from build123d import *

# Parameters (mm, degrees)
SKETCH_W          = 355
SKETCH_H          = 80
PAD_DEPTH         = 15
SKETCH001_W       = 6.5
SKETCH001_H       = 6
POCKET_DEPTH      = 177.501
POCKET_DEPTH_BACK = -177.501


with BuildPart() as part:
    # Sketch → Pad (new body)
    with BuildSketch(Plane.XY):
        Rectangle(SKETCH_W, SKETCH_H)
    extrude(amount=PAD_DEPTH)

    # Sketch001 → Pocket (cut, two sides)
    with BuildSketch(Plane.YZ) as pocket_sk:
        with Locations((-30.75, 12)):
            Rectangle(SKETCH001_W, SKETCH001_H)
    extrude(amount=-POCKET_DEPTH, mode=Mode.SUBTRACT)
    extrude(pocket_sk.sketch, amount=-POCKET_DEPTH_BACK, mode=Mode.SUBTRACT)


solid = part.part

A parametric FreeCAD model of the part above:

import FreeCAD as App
import Part
import Sketcher
from FreeCAD import Vector
Q = App.Units.Quantity

doc = App.newDocument("Part")
params = doc.addObject("Spreadsheet::Sheet", "Params")
for row, (alias, value) in enumerate([
    ("sketch1_width", "355 mm"),
    ("sketch1_height", "80 mm"),
    ("pad1_length", "15 mm"),
    ("sketch2_height", "6 mm"),
    ("sketch2_width", "6.5 mm"),
], start=1):
    params.set(f"A{row}", alias)
    params.set(f"B{row}", "=" + value)
    params.setAlias(f"B{row}", alias)

body = doc.addObject("PartDesign::Body", "Body")

sketch1 = doc.addObject("Sketcher::SketchObject", "Sketch")
body.addObject(sketch1)
sketch1.AttachmentSupport = (doc.XY_Plane, [""])
sketch1.MapMode = "FlatFace"
sketch1.addGeometry(Part.LineSegment(Vector(-177.5, 40, 0), Vector(-177.5, -40, 0)), False)
sketch1.addGeometry(Part.LineSegment(Vector(-177.5, -40, 0), Vector(177.5, -40, 0)), False)
sketch1.addGeometry(Part.LineSegment(Vector(177.5, -40, 0), Vector(177.5, 40, 0)), False)
sketch1.addGeometry(Part.LineSegment(Vector(177.5, 40, 0), Vector(-177.5, 40, 0)), False)
sketch1.addConstraint(Sketcher.Constraint("Coincident", 0, 2, 1, 1))
sketch1.addConstraint(Sketcher.Constraint("Coincident", 1, 2, 2, 1))
sketch1.addConstraint(Sketcher.Constraint("Coincident", 2, 2, 3, 1))
sketch1.addConstraint(Sketcher.Constraint("Coincident", 3, 2, 0, 1))
sketch1.addConstraint(Sketcher.Constraint("Vertical", 0))
sketch1.addConstraint(Sketcher.Constraint("Horizontal", 1))
sketch1.addConstraint(Sketcher.Constraint("Vertical", 2))
sketch1.addConstraint(Sketcher.Constraint("Horizontal", 3))
sketch1.addConstraint(Sketcher.Constraint("Symmetric", 0, 2, 2, 2, -1, 1))
sketch1.addConstraint(Sketcher.Constraint("DistanceX", 1, 1, 1, 2, Q("355 mm")))
sketch1.addConstraint(Sketcher.Constraint("DistanceY", 0, 2, 0, 1, Q("80 mm")))
sketch1.setExpression("Constraints[9]", "Params.sketch1_width")
sketch1.setExpression("Constraints[10]", "Params.sketch1_height")
pad1 = doc.addObject("PartDesign::Pad", "Pad")
body.addObject(pad1)
pad1.Profile = sketch1
pad1.setExpression("Length", "Params.pad1_length")

sketch2 = doc.addObject("Sketcher::SketchObject", "Sketch001")
body.addObject(sketch2)
sketch2.AttachmentSupport = (doc.YZ_Plane, [""])
sketch2.MapMode = "FlatFace"
sketch2.addGeometry(Part.LineSegment(Vector(-34, 15, 0), Vector(-34, 9, 0)), False)
sketch2.addGeometry(Part.LineSegment(Vector(-34, 9, 0), Vector(-27.5, 9, 0)), False)
sketch2.addGeometry(Part.LineSegment(Vector(-27.5, 9, 0), Vector(-27.5, 15, 0)), False)
sketch2.addGeometry(Part.LineSegment(Vector(-27.5, 15, 0), Vector(-34, 15, 0)), False)
sketch2.addConstraint(Sketcher.Constraint("Coincident", 0, 2, 1, 1))
sketch2.addConstraint(Sketcher.Constraint("Coincident", 1, 2, 2, 1))
sketch2.addConstraint(Sketcher.Constraint("Coincident", 2, 2, 3, 1))
sketch2.addConstraint(Sketcher.Constraint("Coincident", 3, 2, 0, 1))
sketch2.addConstraint(Sketcher.Constraint("Vertical", 0))
sketch2.addConstraint(Sketcher.Constraint("Horizontal", 1))
sketch2.addConstraint(Sketcher.Constraint("Vertical", 2))
sketch2.addConstraint(Sketcher.Constraint("Horizontal", 3))
sketch2.addConstraint(Sketcher.Constraint("DistanceY", 0, 2, 0, 1, Q("6 mm")))
sketch2.addConstraint(Sketcher.Constraint("DistanceX", 1, 1, 1, 2, Q("6.5 mm")))
sketch2.addConstraint(Sketcher.Constraint("DistanceX", 0, 2, -1, 1, Q("34 mm")))
sketch2.addConstraint(Sketcher.Constraint("DistanceY", -1, 1, 0, 2, Q("9 mm")))
sketch2.setExpression("Constraints[8]", "Params.sketch2_height")
sketch2.setExpression("Constraints[9]", "Params.sketch2_width")
pocket1 = doc.addObject("PartDesign::Pocket", "Pocket")
body.addObject(pocket1)
pocket1.Profile = sketch2
pocket1.Type = "ThroughAll"
pocket1.Midplane = True

doc.recompute()
